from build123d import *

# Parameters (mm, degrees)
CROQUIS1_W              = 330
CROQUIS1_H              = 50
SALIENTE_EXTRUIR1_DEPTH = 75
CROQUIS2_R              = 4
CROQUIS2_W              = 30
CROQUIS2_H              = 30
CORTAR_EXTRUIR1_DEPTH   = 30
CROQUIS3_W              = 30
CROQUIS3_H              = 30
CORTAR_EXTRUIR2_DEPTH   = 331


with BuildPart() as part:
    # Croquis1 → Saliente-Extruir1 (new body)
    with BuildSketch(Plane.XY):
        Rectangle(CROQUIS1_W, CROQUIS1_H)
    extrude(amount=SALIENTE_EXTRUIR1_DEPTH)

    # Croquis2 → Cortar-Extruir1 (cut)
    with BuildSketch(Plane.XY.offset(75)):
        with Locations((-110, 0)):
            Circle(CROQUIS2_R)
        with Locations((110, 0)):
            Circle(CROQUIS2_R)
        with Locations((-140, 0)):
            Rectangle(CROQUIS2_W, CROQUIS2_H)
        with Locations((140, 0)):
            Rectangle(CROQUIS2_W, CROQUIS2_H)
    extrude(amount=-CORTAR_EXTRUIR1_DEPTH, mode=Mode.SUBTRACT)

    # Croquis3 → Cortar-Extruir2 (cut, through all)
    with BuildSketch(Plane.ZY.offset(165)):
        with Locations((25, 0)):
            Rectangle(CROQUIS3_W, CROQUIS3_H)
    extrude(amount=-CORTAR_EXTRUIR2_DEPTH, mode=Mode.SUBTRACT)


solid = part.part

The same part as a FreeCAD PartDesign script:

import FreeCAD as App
import Part
import Sketcher
from FreeCAD import Vector


def add_polygon(sketch, points):
    """Adds a closed chain of lines whose ends are joined by coincident constraints."""
    first, n = sketch.GeometryCount, len(points)
    for a, b in zip(points, points[1:] + points[:1]):
        sketch.addGeometry(Part.LineSegment(App.Vector(*a, 0), App.Vector(*b, 0)), False)
    for i in range(n):
        sketch.addConstraint(Sketcher.Constraint("Coincident", first + i, 2, first + (i + 1) % n, 1))

doc = App.newDocument("Part")
body = doc.addObject("PartDesign::Body", "Body")

# Sketch on XY plane
sketch1 = body.newObject("Sketcher::SketchObject", "Sketch")
sketch1.AttachmentSupport = (doc.getObject("XY_Plane"), [""])
sketch1.MapMode = "FlatFace"
add_polygon(sketch1, [(-165, 25), (-165, -25), (165, -25), (165, 25)])  # lines 0-3
sketch1.addConstraint(Sketcher.Constraint("Vertical", 0))
sketch1.addConstraint(Sketcher.Constraint("Horizontal", 1))
sketch1.addConstraint(Sketcher.Constraint("Vertical", 2))
sketch1.addConstraint(Sketcher.Constraint("Horizontal", 3))
sketch1.addConstraint(Sketcher.Constraint("Symmetric", 0, 2, 2, 2, -1, 1))
sketch1.addConstraint(Sketcher.Constraint("DistanceX", 1, 1, 1, 2, 330.0))
sketch1.addConstraint(Sketcher.Constraint("DistanceY", 0, 2, 0, 1, 50.0))
pad1 = body.newObject("PartDesign::Pad", "Pad")
pad1.Profile = sketch1
pad1.Length = 75

# Sketch on XY plane
sketch2 = body.newObject("Sketcher::SketchObject", "Sketch001")
sketch2.AttachmentSupport = (doc.getObject("XY_Plane"), [""])
sketch2.MapMode = "FlatFace"
sketch2.AttachmentOffset = App.Placement(Vector(0, 0, 75), App.Rotation())
sketch2.addGeometry(Part.Circle(Vector(-110, 0, 0), Vector(0, 0, 1), 4), False)  # 0
sketch2.addGeometry(Part.Circle(Vector(110, 0, 0), Vector(0, 0, 1), 4), False)  # 1
add_polygon(sketch2, [(-155, 15), (-155, -15), (-125, -15), (-125, 15)])  # lines 2-5
add_polygon(sketch2, [(125, 15), (125, -15), (155, -15), (155, 15)])  # lines 6-9
sketch2.addConstraint(Sketcher.Constraint("Vertical", 2))
sketch2.addConstraint(Sketcher.Constraint("Horizontal", 3))
sketch2.addConstraint(Sketcher.Constraint("Vertical", 4))
sketch2.addConstraint(Sketcher.Constraint("Horizontal", 5))
sketch2.addConstraint(Sketcher.Constraint("Vertical", 6))
sketch2.addConstraint(Sketcher.Constraint("Horizontal", 7))
sketch2.addConstraint(Sketcher.Constraint("Vertical", 8))
sketch2.addConstraint(Sketcher.Constraint("Horizontal", 9))
sketch2.addConstraint(Sketcher.Constraint("Equal", 0, 1))
sketch2.addConstraint(Sketcher.Constraint("Symmetric", 0, 3, 1, 3, -1, 1))
sketch2.addConstraint(Sketcher.Constraint("Symmetric", 4, 2, 6, 2, -1, 1))
sketch2.addConstraint(Sketcher.Constraint("Symmetric", 2, 2, 8, 2, -1, 1))
sketch2.addConstraint(Sketcher.Constraint("PointOnObject", 0, 3, -1))
sketch2.addConstraint(Sketcher.Constraint("Horizontal", 3, 2, 6, 2))
sketch2.addConstraint(Sketcher.Constraint("Equal", 9, 2))
sketch2.addConstraint(Sketcher.Constraint("Diameter", 0, 8.0))
sketch2.addConstraint(Sketcher.Constraint("DistanceX", 3, 1, 3, 2, 30.0))
sketch2.addConstraint(Sketcher.Constraint("DistanceX", 0, 3, -1, 1, 110.0))
sketch2.addConstraint(Sketcher.Constraint("DistanceX", 2, 2, -1, 1, 155.0))
pocket1 = body.newObject("PartDesign::Pocket", "Pocket")
pocket1.Profile = sketch2
pocket1.Length = 30

# Sketch on YZ plane
sketch3 = body.newObject("Sketcher::SketchObject", "Sketch002")
sketch3.AttachmentSupport = (doc.getObject("YZ_Plane"), [""])
sketch3.MapMode = "FlatFace"
sketch3.AttachmentOffset = App.Placement(Vector(0, 0, -165), App.Rotation())
add_polygon(sketch3, [(15, 10), (-15, 10), (-15, 40), (15, 40)])  # lines 0-3
sketch3.addConstraint(Sketcher.Constraint("Horizontal", 0))
sketch3.addConstraint(Sketcher.Constraint("Vertical", 1))
sketch3.addConstraint(Sketcher.Constraint("Horizontal", 2))
sketch3.addConstraint(Sketcher.Constraint("Vertical", 3))
sketch3.addConstraint(Sketcher.Constraint("Equal", 2, 1))
sketch3.addConstraint(Sketcher.Constraint("DistanceX", 0, 2, 0, 1, 30.0))
sketch3.addConstraint(Sketcher.Constraint("DistanceX", 0, 2, -1, 1, 15.0))
sketch3.addConstraint(Sketcher.Constraint("DistanceY", -1, 1, 0, 2, 10.0))
pocket2 = body.newObject("PartDesign::Pocket", "Pocket001")
pocket2.Profile = sketch3
pocket2.Type = "ThroughAll"
pocket2.Reversed = True

doc.recompute()
